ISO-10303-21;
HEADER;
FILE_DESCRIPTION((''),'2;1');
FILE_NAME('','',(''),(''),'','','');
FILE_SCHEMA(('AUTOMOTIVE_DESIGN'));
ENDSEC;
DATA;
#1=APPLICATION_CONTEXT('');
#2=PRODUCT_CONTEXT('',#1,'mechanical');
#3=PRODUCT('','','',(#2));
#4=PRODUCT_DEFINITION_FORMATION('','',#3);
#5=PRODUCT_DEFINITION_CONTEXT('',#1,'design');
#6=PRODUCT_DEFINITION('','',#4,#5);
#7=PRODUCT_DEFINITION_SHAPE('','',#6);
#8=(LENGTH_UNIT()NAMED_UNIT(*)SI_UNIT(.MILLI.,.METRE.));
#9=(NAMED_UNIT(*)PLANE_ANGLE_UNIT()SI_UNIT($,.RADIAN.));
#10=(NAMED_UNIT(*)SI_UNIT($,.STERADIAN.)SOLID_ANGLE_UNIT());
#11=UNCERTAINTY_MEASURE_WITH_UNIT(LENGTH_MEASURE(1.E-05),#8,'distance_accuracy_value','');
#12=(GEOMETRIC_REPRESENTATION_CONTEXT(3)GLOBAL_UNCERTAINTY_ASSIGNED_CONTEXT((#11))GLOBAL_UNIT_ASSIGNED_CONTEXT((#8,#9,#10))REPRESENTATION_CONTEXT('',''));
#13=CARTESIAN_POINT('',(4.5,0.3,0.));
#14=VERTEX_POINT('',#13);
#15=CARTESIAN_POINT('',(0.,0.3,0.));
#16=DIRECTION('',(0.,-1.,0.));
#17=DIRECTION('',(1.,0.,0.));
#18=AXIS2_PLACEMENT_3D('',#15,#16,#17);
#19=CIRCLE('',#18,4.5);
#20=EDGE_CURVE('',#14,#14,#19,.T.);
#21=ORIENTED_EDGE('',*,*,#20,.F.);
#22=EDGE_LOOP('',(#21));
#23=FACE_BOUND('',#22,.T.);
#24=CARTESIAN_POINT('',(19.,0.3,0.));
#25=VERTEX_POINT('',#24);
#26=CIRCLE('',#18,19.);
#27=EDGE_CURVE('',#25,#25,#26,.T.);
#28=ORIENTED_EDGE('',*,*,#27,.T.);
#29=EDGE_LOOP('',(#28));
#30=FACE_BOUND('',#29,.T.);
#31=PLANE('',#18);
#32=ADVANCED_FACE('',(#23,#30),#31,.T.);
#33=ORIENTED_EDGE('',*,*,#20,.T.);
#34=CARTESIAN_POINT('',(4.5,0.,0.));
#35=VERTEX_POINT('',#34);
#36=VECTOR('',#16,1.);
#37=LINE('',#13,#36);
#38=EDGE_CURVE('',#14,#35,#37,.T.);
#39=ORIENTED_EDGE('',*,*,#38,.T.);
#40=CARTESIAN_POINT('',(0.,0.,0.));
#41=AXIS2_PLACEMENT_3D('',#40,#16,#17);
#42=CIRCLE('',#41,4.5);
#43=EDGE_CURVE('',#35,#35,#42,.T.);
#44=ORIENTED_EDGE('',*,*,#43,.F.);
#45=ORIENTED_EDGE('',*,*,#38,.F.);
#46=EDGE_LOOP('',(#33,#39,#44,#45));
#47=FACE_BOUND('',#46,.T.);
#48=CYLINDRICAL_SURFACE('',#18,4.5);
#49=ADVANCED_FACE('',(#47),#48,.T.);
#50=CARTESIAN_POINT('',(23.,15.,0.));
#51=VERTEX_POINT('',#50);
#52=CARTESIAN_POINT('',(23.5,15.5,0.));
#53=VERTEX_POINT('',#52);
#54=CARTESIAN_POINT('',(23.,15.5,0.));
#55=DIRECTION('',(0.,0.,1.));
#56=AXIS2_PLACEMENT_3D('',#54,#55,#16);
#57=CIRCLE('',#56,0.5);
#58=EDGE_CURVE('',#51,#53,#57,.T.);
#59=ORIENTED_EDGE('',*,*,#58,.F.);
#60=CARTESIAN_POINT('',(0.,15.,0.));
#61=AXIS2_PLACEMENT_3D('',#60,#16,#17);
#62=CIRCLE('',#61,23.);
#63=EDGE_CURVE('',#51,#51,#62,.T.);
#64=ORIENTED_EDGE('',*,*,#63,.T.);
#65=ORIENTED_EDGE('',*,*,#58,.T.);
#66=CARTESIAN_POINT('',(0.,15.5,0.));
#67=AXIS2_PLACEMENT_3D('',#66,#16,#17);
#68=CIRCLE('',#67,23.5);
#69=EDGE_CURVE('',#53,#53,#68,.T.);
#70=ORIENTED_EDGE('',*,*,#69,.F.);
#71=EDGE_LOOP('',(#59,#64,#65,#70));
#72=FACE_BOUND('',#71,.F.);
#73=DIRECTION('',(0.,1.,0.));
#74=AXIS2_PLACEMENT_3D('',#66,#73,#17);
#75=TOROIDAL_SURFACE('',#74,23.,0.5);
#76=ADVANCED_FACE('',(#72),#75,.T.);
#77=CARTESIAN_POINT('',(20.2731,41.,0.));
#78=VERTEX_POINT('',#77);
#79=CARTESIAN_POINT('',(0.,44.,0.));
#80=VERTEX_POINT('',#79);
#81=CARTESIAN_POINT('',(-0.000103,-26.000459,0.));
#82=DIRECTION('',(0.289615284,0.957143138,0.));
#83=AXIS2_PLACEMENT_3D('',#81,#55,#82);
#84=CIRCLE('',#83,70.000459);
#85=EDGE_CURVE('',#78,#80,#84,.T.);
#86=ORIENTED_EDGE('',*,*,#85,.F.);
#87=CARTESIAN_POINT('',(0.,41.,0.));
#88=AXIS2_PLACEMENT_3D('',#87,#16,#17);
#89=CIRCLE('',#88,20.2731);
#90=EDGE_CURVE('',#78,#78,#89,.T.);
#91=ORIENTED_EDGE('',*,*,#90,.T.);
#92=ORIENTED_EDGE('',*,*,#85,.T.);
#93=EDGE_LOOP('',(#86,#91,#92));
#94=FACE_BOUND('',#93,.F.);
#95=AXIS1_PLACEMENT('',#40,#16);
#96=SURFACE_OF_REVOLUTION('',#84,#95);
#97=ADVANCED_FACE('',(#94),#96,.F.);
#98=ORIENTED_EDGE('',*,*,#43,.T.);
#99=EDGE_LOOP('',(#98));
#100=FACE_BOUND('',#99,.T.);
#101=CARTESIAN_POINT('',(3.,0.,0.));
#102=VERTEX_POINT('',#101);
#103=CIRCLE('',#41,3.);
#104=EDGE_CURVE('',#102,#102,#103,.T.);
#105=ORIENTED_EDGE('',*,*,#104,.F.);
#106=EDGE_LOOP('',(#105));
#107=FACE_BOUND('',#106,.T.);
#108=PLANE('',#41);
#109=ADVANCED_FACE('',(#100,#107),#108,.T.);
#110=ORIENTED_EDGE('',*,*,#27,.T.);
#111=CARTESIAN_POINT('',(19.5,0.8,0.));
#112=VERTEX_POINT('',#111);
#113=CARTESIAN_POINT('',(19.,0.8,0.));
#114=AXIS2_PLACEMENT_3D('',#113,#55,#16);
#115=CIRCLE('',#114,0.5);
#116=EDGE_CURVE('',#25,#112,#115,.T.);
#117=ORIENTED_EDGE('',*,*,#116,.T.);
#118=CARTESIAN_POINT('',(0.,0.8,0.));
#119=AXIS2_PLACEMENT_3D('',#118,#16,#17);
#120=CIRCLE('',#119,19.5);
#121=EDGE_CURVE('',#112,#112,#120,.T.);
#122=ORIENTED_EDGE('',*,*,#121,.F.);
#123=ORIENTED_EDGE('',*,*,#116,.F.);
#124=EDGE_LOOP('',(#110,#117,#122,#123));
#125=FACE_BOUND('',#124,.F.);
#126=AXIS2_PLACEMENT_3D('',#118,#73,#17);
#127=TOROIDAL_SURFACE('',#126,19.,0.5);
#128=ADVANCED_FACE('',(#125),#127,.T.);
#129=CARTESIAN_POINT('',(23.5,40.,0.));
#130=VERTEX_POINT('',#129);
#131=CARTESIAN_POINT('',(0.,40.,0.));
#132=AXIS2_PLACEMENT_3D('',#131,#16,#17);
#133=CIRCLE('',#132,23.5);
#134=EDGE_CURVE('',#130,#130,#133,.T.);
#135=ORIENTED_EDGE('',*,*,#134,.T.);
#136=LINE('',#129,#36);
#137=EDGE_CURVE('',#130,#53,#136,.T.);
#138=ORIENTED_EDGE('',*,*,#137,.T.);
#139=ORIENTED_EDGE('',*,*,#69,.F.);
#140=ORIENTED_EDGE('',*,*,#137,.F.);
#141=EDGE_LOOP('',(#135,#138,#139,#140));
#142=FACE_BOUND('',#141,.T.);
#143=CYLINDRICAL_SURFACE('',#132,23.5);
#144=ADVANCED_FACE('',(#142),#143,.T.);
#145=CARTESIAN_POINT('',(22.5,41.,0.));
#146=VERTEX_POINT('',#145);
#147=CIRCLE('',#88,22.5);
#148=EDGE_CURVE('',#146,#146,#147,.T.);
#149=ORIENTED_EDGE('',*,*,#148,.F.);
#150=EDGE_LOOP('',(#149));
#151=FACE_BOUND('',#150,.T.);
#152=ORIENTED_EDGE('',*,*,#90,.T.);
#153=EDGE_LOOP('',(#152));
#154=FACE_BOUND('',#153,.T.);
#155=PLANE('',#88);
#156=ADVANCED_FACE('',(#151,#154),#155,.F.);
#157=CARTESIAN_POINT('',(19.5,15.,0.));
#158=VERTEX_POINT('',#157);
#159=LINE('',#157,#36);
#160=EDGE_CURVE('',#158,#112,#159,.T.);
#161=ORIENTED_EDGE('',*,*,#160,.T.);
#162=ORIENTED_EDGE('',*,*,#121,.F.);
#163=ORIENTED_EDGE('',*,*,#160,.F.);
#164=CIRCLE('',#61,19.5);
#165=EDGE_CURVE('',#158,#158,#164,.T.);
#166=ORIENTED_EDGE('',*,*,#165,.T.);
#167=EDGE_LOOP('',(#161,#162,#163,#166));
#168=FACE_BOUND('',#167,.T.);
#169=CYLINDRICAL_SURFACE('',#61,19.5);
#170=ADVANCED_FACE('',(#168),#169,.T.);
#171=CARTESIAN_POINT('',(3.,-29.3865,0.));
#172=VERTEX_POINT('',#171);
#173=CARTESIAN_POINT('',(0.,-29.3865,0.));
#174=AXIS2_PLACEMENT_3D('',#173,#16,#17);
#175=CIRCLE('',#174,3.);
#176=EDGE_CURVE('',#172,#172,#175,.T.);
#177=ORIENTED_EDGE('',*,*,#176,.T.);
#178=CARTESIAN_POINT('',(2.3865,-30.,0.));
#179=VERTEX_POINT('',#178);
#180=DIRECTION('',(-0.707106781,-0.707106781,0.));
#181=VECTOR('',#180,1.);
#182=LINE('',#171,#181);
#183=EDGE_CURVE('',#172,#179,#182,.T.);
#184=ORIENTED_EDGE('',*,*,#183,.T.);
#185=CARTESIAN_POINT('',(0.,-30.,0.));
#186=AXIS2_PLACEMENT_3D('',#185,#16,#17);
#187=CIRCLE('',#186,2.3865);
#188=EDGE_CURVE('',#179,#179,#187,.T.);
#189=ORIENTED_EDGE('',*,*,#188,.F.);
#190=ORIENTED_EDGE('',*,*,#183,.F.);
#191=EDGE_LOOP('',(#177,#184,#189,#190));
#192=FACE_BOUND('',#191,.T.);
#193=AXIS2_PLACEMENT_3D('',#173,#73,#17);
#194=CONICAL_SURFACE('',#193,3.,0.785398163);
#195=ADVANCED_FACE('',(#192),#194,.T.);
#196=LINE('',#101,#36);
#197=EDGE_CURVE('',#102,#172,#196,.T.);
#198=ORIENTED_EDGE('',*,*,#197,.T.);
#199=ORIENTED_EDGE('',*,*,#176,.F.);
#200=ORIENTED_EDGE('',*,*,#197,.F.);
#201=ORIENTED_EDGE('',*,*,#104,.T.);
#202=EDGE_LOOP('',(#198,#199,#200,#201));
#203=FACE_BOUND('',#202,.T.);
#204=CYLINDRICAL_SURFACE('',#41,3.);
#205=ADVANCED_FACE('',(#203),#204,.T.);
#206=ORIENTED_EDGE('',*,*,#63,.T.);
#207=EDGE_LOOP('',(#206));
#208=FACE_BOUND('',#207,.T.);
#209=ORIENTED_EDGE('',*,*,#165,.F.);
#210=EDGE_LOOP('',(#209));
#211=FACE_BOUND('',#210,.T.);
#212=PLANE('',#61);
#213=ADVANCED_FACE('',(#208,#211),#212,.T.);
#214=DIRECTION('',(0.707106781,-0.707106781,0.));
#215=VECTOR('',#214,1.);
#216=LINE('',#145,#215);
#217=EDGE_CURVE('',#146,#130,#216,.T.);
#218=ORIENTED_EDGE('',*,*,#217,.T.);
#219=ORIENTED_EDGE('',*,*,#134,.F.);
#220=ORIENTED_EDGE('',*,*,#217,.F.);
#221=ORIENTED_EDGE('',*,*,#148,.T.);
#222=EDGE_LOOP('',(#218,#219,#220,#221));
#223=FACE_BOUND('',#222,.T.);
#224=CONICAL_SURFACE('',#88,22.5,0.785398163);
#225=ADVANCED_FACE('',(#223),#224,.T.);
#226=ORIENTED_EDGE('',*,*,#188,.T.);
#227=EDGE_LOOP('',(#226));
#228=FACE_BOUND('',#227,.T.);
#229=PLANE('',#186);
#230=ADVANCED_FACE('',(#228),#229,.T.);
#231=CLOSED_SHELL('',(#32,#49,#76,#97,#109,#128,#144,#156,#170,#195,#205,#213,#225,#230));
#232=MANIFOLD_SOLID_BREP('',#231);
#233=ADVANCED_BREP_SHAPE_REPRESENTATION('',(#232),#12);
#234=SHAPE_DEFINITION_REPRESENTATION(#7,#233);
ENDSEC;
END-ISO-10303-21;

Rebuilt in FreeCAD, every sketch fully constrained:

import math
import FreeCAD as App
import Part
import Sketcher

V = App.Vector
Q = App.Units.Quantity

doc = App.newDocument("Part")
body = doc.addObject("PartDesign::Body", "Body")

sketch1 = doc.addObject("Sketcher::SketchObject", "Sketch")
body.addObject(sketch1)
sketch1.AttachmentSupport = (doc.XY_Plane, [""])
sketch1.MapMode = "FlatFace"
sketch1.addGeometry([
    Part.LineSegment(V(0, 44, 0), V(0, 0, 0)),
    Part.LineSegment(V(0, 0, 0), V(4.5, 0, 0)),
    Part.LineSegment(V(4.5, 0, 0), V(4.5, 0.3, 0)),
    Part.LineSegment(V(4.5, 0.3, 0), V(19, 0.3, 0)),
    Part.ArcOfCircle(Part.Circle(V(19, 0.8, 0), V(0, 0, 1), 0.5), math.radians(-90), math.radians(0)),
    Part.LineSegment(V(19.5, 0.8, 0), V(19.5, 15, 0)),
    Part.LineSegment(V(19.5, 15, 0), V(23, 15, 0)),
    Part.ArcOfCircle(Part.Circle(V(23, 15.5, 0), V(0, 0, 1), 0.5), math.radians(-90), math.radians(0)),
    Part.LineSegment(V(23.5, 15.5, 0), V(23.5, 40, 0)),
    Part.LineSegment(V(23.5, 40, 0), V(22.5, 41, 0)),
    Part.LineSegment(V(22.5, 41, 0), V(20.27, 41, 0)),
    Part.ArcOfCircle(Part.Circle(V(0, -26, 0), V(0, 0, 1), 70), math.radians(73.17), math.radians(90)),
], False)
sketch1.addConstraint([
    Sketcher.Constraint("Coincident", 0, 2, 1, 1),
    Sketcher.Constraint("Coincident", 1, 2, 2, 1),
    Sketcher.Constraint("Coincident", 2, 2, 3, 1),
    Sketcher.Constraint("Tangent", 3, 2, 4, 1),
    Sketcher.Constraint("Tangent", 4, 2, 5, 1),
    Sketcher.Constraint("Coincident", 5, 2, 6, 1),
    Sketcher.Constraint("Tangent", 6, 2, 7, 1),
    Sketcher.Constraint("Tangent", 7, 2, 8, 1),
    Sketcher.Constraint("Coincident", 8, 2, 9, 1),
    Sketcher.Constraint("Coincident", 9, 2, 10, 1),
    Sketcher.Constraint("Coincident", 10, 2, 11, 1),
    Sketcher.Constraint("Coincident", 11, 2, 0, 1),
    Sketcher.Constraint("Vertical", 0),
    Sketcher.Constraint("Horizontal", 1),
    Sketcher.Constraint("Vertical", 2),
    Sketcher.Constraint("Horizontal", 3),
    Sketcher.Constraint("Vertical", 5),
    Sketcher.Constraint("Horizontal", 6),
    Sketcher.Constraint("Vertical", 8),
    Sketcher.Constraint("Horizontal", 10),
    Sketcher.Constraint("Coincident", 0, 2, -1, 1),
    Sketcher.Constraint("Equal", 4, 7),
    Sketcher.Constraint("PointOnObject", 11, 3, -2),
    Sketcher.Constraint("Radius", 11, Q("70 mm")),
    Sketcher.Constraint("Radius", 4, Q("0.5 mm")),
    Sketcher.Constraint("DistanceY", 0, 2, 0, 1, Q("44 mm")),
    Sketcher.Constraint("Angle", 9, Q("135 deg")),
    Sketcher.Constraint("DistanceX", 1, 1, 1, 2, Q("4.5 mm")),
    Sketcher.Constraint("DistanceX", 3, 1, 3, 2, Q("14.5 mm")),
    Sketcher.Constraint("DistanceX", 6, 1, 6, 2, Q("3.5 mm")),
    Sketcher.Constraint("DistanceY", 2, 1, 2, 2, Q("0.3 mm")),
    Sketcher.Constraint("DistanceY", 5, 1, 5, 2, Q("14.2 mm")),
    Sketcher.Constraint("DistanceY", 8, 1, 8, 2, Q("24.5 mm")),
    Sketcher.Constraint("DistanceY", -1, 1, 9, 2, Q("41 mm")),
])
revolution = doc.addObject("PartDesign::Revolution", "Revolution")
body.addObject(revolution)
revolution.Profile = sketch1
revolution.ReferenceAxis = (sketch1, ["V_Axis"])
revolution.Angle = 360

sketch2 = doc.addObject("Sketcher::SketchObject", "Sketch001")
body.addObject(sketch2)
sketch2.AttachmentSupport = (doc.XY_Plane, [""])
sketch2.MapMode = "FlatFace"
sketch2.addGeometry([
    Part.LineSegment(V(0, 0, 0), V(0, -30, 0)),
    Part.LineSegment(V(0, -30, 0), V(2.4, -30, 0)),
    Part.LineSegment(V(2.4, -30, 0), V(3, -29.4, 0)),
    Part.LineSegment(V(3, -29.4, 0), V(3, 0, 0)),
    Part.LineSegment(V(3, 0, 0), V(0, 0, 0)),
], False)
sketch2.addConstraint([
    Sketcher.Constraint("Coincident", 0, 2, 1, 1),
    Sketcher.Constraint("Coincident", 1, 2, 2, 1),
    Sketcher.Constraint("Coincident", 2, 2, 3, 1),
    Sketcher.Constraint("Coincident", 3, 2, 4, 1),
    Sketcher.Constraint("Coincident", 4, 2, 0, 1),
    Sketcher.Constraint("Vertical", 0),
    Sketcher.Constraint("Horizontal", 1),
    Sketcher.Constraint("Vertical", 3),
    Sketcher.Constraint("Horizontal", 4),
    Sketcher.Constraint("Coincident", 4, 2, -1, 1),
    Sketcher.Constraint("DistanceX", 4, 2, 4, 1, Q("3 mm")),
    Sketcher.Constraint("DistanceY", 0, 2, 0, 1, Q("30 mm")),
    Sketcher.Constraint("Angle", 2, Q("45 deg")),
    Sketcher.Constraint("DistanceX", 1, 1, 1, 2, Q("2.3865 mm")),
])
revolution2 = doc.addObject("PartDesign::Revolution", "Revolution001")
body.addObject(revolution2)
revolution2.Profile = sketch2
revolution2.ReferenceAxis = (sketch2, ["V_Axis"])
revolution2.Angle = 360

doc.recompute()
